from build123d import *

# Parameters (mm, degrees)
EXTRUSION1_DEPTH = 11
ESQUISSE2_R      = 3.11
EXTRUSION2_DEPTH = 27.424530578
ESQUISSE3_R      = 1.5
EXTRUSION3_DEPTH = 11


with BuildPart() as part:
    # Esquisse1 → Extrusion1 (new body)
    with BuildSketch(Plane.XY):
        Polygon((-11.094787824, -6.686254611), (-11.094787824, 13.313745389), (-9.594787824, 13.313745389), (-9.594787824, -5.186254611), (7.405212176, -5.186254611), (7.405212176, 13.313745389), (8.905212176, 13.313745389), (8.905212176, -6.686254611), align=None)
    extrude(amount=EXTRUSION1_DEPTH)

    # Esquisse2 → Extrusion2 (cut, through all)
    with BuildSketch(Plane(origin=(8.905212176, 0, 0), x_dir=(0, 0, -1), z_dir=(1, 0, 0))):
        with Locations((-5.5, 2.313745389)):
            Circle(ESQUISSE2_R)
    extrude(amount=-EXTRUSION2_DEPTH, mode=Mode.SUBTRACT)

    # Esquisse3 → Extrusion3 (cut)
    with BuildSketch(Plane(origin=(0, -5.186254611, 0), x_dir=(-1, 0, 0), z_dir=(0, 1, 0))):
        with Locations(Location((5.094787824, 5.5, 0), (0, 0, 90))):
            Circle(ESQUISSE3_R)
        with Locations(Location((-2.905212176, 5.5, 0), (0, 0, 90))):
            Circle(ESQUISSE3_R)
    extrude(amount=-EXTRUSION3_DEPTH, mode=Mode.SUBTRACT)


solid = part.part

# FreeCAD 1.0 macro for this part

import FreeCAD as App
import Part
import Sketcher
from FreeCAD import Vector


def add_polygon(sketch, points):
    """Adds a closed chain of lines whose ends are joined by coincident constraints."""
    first, n = sketch.GeometryCount, len(points)
    for a, b in zip(points, points[1:] + points[:1]):
        sketch.addGeometry(Part.LineSegment(App.Vector(*a, 0), App.Vector(*b, 0)), False)
    for i in range(n):
        sketch.addConstraint(Sketcher.Constraint("Coincident", first + i, 2, first + (i + 1) % n, 1))

doc = App.newDocument("Part")
params = doc.addObject("Spreadsheet::Sheet", "Params")
for row, (alias, value) in enumerate([
    ("sketch1_width", "20 mm"),
    ("sketch1_width2", "17 mm"),
    ("sketch1_height", "18.5 mm"),
    ("pad1_length", "11 mm"),
    ("sketch2_diameter", "6.22 mm"),
    ("sketch3_diameter", "3 mm"),
    ("pocket2_length", "11 mm"),
], start=1):
    params.set(f"A{row}", alias)
    params.set(f"B{row}", "=" + value)
    params.setAlias(f"B{row}", alias)

body = doc.addObject("PartDesign::Body", "Body")

# Sketch on XY plane
sketch1 = body.newObject("Sketcher::SketchObject", "Sketch")
sketch1.AttachmentSupport = (doc.getObject("XY_Plane"), [""])
sketch1.MapMode = "FlatFace"
add_polygon(sketch1, [(-11.094788, 13.313745), (-11.094788, -6.686255), (8.905212, -6.686255), (8.905212, 13.313745), (7.405212, 13.313745), (7.405212, -5.186255), (-9.594788, -5.186255), (-9.594788, 13.313745)])  # lines 0-7
sketch1.addConstraint(Sketcher.Constraint("Vertical", 0))
sketch1.addConstraint(Sketcher.Constraint("Horizontal", 1))
sketch1.addConstraint(Sketcher.Constraint("Vertical", 2))
sketch1.addConstraint(Sketcher.Constraint("Horizontal", 3))
sketch1.addConstraint(Sketcher.Constraint("Vertical", 4))
sketch1.addConstraint(Sketcher.Constraint("Horizontal", 5))
sketch1.addConstraint(Sketcher.Constraint("Vertical", 6))
sketch1.addConstraint(Sketcher.Constraint("Horizontal", 7))
sketch1.addConstraint(Sketcher.Constraint("Horizontal", 3, 2, 6, 2))
sketch1.addConstraint(Sketcher.Constraint("Equal", 3, 7))
sketch1.addConstraint(Sketcher.Constraint("Equal", 1, 0))
sketch1.addConstraint(Sketcher.Constraint("DistanceX", 1, 1, 1, 2, 20.0))
sketch1.addConstraint(Sketcher.Constraint("DistanceX", 5, 2, 5, 1, 17.0))
sketch1.addConstraint(Sketcher.Constraint("DistanceY", 4, 2, 4, 1, 18.5))
sketch1.addConstraint(Sketcher.Constraint("DistanceX", 0, 2, -1, 1, 11.094788))
sketch1.addConstraint(Sketcher.Constraint("DistanceY", 0, 2, -1, 1, 6.686255))
sketch1.setExpression("Constraints[19]", "Params.sketch1_width")
sketch1.setExpression("Constraints[20]", "Params.sketch1_width2")
sketch1.setExpression("Constraints[21]", "Params.sketch1_height")
pad1 = body.newObject("PartDesign::Pad", "Pad")
pad1.Profile = sketch1
pad1.setExpression("Length", "Params.pad1_length")

# Sketch on YZ plane
sketch2 = body.newObject("Sketcher::SketchObject", "Sketch001")
sketch2.AttachmentSupport = (doc.getObject("YZ_Plane"), [""])
sketch2.MapMode = "FlatFace"
sketch2.AttachmentOffset = App.Placement(Vector(0, 0, 8.905212), App.Rotation())
sketch2.addGeometry(Part.Circle(Vector(2.313745, 5.5, 0), Vector(0, 0, 1), 3.11), False)
sketch2.addConstraint(Sketcher.Constraint("Diameter", 0, 6.22))
sketch2.addConstraint(Sketcher.Constraint("DistanceY", -1, 1, 0, 3, 5.5))
sketch2.addConstraint(Sketcher.Constraint("DistanceX", -1, 1, 0, 3, 2.313745))
sketch2.setExpression("Constraints[0]", "Params.sketch2_diameter")
pocket1 = body.newObject("PartDesign::Pocket", "Pocket")
pocket1.Profile = sketch2
pocket1.Type = "ThroughAll"

# Sketch on XZ plane
sketch3 = body.newObject("Sketcher::SketchObject", "Sketch002")
sketch3.AttachmentSupport = (doc.getObject("XZ_Plane"), [""])
sketch3.MapMode = "FlatFace"
sketch3.AttachmentOffset = App.Placement(Vector(0, 0, 5.186255), App.Rotation())
sketch3.addGeometry(Part.Circle(Vector(-5.094788, 5.5, 0), Vector(0, 0, 1), 1.5), False)
sketch3.addGeometry(Part.Circle(Vector(2.905212, 5.5, 0), Vector(0, 0, 1), 1.5), False)
sketch3.addConstraint(Sketcher.Constraint("Equal", 0, 1))
sketch3.addConstraint(Sketcher.Constraint("Horizontal", 0, 3, 1, 3))
sketch3.addConstraint(Sketcher.Constraint("Diameter", 0, 3.0))
sketch3.addConstraint(Sketcher.Constraint("DistanceX", 0, 3, 1, 3, 8.0))
sketch3.addConstraint(Sketcher.Constraint("DistanceY", -1, 1, 0, 3, 5.5))
sketch3.addConstraint(Sketcher.Constraint("DistanceX", 0, 3, -1, 1, 5.094788))
sketch3.setExpression("Constraints[2]", "Params.sketch3_diameter")
pocket2 = body.newObject("PartDesign::Pocket", "Pocket001")
pocket2.Profile = sketch3
pocket2.setExpression("Length", "Params.pocket2_length")
pocket2.Reversed = True

doc.recompute()
